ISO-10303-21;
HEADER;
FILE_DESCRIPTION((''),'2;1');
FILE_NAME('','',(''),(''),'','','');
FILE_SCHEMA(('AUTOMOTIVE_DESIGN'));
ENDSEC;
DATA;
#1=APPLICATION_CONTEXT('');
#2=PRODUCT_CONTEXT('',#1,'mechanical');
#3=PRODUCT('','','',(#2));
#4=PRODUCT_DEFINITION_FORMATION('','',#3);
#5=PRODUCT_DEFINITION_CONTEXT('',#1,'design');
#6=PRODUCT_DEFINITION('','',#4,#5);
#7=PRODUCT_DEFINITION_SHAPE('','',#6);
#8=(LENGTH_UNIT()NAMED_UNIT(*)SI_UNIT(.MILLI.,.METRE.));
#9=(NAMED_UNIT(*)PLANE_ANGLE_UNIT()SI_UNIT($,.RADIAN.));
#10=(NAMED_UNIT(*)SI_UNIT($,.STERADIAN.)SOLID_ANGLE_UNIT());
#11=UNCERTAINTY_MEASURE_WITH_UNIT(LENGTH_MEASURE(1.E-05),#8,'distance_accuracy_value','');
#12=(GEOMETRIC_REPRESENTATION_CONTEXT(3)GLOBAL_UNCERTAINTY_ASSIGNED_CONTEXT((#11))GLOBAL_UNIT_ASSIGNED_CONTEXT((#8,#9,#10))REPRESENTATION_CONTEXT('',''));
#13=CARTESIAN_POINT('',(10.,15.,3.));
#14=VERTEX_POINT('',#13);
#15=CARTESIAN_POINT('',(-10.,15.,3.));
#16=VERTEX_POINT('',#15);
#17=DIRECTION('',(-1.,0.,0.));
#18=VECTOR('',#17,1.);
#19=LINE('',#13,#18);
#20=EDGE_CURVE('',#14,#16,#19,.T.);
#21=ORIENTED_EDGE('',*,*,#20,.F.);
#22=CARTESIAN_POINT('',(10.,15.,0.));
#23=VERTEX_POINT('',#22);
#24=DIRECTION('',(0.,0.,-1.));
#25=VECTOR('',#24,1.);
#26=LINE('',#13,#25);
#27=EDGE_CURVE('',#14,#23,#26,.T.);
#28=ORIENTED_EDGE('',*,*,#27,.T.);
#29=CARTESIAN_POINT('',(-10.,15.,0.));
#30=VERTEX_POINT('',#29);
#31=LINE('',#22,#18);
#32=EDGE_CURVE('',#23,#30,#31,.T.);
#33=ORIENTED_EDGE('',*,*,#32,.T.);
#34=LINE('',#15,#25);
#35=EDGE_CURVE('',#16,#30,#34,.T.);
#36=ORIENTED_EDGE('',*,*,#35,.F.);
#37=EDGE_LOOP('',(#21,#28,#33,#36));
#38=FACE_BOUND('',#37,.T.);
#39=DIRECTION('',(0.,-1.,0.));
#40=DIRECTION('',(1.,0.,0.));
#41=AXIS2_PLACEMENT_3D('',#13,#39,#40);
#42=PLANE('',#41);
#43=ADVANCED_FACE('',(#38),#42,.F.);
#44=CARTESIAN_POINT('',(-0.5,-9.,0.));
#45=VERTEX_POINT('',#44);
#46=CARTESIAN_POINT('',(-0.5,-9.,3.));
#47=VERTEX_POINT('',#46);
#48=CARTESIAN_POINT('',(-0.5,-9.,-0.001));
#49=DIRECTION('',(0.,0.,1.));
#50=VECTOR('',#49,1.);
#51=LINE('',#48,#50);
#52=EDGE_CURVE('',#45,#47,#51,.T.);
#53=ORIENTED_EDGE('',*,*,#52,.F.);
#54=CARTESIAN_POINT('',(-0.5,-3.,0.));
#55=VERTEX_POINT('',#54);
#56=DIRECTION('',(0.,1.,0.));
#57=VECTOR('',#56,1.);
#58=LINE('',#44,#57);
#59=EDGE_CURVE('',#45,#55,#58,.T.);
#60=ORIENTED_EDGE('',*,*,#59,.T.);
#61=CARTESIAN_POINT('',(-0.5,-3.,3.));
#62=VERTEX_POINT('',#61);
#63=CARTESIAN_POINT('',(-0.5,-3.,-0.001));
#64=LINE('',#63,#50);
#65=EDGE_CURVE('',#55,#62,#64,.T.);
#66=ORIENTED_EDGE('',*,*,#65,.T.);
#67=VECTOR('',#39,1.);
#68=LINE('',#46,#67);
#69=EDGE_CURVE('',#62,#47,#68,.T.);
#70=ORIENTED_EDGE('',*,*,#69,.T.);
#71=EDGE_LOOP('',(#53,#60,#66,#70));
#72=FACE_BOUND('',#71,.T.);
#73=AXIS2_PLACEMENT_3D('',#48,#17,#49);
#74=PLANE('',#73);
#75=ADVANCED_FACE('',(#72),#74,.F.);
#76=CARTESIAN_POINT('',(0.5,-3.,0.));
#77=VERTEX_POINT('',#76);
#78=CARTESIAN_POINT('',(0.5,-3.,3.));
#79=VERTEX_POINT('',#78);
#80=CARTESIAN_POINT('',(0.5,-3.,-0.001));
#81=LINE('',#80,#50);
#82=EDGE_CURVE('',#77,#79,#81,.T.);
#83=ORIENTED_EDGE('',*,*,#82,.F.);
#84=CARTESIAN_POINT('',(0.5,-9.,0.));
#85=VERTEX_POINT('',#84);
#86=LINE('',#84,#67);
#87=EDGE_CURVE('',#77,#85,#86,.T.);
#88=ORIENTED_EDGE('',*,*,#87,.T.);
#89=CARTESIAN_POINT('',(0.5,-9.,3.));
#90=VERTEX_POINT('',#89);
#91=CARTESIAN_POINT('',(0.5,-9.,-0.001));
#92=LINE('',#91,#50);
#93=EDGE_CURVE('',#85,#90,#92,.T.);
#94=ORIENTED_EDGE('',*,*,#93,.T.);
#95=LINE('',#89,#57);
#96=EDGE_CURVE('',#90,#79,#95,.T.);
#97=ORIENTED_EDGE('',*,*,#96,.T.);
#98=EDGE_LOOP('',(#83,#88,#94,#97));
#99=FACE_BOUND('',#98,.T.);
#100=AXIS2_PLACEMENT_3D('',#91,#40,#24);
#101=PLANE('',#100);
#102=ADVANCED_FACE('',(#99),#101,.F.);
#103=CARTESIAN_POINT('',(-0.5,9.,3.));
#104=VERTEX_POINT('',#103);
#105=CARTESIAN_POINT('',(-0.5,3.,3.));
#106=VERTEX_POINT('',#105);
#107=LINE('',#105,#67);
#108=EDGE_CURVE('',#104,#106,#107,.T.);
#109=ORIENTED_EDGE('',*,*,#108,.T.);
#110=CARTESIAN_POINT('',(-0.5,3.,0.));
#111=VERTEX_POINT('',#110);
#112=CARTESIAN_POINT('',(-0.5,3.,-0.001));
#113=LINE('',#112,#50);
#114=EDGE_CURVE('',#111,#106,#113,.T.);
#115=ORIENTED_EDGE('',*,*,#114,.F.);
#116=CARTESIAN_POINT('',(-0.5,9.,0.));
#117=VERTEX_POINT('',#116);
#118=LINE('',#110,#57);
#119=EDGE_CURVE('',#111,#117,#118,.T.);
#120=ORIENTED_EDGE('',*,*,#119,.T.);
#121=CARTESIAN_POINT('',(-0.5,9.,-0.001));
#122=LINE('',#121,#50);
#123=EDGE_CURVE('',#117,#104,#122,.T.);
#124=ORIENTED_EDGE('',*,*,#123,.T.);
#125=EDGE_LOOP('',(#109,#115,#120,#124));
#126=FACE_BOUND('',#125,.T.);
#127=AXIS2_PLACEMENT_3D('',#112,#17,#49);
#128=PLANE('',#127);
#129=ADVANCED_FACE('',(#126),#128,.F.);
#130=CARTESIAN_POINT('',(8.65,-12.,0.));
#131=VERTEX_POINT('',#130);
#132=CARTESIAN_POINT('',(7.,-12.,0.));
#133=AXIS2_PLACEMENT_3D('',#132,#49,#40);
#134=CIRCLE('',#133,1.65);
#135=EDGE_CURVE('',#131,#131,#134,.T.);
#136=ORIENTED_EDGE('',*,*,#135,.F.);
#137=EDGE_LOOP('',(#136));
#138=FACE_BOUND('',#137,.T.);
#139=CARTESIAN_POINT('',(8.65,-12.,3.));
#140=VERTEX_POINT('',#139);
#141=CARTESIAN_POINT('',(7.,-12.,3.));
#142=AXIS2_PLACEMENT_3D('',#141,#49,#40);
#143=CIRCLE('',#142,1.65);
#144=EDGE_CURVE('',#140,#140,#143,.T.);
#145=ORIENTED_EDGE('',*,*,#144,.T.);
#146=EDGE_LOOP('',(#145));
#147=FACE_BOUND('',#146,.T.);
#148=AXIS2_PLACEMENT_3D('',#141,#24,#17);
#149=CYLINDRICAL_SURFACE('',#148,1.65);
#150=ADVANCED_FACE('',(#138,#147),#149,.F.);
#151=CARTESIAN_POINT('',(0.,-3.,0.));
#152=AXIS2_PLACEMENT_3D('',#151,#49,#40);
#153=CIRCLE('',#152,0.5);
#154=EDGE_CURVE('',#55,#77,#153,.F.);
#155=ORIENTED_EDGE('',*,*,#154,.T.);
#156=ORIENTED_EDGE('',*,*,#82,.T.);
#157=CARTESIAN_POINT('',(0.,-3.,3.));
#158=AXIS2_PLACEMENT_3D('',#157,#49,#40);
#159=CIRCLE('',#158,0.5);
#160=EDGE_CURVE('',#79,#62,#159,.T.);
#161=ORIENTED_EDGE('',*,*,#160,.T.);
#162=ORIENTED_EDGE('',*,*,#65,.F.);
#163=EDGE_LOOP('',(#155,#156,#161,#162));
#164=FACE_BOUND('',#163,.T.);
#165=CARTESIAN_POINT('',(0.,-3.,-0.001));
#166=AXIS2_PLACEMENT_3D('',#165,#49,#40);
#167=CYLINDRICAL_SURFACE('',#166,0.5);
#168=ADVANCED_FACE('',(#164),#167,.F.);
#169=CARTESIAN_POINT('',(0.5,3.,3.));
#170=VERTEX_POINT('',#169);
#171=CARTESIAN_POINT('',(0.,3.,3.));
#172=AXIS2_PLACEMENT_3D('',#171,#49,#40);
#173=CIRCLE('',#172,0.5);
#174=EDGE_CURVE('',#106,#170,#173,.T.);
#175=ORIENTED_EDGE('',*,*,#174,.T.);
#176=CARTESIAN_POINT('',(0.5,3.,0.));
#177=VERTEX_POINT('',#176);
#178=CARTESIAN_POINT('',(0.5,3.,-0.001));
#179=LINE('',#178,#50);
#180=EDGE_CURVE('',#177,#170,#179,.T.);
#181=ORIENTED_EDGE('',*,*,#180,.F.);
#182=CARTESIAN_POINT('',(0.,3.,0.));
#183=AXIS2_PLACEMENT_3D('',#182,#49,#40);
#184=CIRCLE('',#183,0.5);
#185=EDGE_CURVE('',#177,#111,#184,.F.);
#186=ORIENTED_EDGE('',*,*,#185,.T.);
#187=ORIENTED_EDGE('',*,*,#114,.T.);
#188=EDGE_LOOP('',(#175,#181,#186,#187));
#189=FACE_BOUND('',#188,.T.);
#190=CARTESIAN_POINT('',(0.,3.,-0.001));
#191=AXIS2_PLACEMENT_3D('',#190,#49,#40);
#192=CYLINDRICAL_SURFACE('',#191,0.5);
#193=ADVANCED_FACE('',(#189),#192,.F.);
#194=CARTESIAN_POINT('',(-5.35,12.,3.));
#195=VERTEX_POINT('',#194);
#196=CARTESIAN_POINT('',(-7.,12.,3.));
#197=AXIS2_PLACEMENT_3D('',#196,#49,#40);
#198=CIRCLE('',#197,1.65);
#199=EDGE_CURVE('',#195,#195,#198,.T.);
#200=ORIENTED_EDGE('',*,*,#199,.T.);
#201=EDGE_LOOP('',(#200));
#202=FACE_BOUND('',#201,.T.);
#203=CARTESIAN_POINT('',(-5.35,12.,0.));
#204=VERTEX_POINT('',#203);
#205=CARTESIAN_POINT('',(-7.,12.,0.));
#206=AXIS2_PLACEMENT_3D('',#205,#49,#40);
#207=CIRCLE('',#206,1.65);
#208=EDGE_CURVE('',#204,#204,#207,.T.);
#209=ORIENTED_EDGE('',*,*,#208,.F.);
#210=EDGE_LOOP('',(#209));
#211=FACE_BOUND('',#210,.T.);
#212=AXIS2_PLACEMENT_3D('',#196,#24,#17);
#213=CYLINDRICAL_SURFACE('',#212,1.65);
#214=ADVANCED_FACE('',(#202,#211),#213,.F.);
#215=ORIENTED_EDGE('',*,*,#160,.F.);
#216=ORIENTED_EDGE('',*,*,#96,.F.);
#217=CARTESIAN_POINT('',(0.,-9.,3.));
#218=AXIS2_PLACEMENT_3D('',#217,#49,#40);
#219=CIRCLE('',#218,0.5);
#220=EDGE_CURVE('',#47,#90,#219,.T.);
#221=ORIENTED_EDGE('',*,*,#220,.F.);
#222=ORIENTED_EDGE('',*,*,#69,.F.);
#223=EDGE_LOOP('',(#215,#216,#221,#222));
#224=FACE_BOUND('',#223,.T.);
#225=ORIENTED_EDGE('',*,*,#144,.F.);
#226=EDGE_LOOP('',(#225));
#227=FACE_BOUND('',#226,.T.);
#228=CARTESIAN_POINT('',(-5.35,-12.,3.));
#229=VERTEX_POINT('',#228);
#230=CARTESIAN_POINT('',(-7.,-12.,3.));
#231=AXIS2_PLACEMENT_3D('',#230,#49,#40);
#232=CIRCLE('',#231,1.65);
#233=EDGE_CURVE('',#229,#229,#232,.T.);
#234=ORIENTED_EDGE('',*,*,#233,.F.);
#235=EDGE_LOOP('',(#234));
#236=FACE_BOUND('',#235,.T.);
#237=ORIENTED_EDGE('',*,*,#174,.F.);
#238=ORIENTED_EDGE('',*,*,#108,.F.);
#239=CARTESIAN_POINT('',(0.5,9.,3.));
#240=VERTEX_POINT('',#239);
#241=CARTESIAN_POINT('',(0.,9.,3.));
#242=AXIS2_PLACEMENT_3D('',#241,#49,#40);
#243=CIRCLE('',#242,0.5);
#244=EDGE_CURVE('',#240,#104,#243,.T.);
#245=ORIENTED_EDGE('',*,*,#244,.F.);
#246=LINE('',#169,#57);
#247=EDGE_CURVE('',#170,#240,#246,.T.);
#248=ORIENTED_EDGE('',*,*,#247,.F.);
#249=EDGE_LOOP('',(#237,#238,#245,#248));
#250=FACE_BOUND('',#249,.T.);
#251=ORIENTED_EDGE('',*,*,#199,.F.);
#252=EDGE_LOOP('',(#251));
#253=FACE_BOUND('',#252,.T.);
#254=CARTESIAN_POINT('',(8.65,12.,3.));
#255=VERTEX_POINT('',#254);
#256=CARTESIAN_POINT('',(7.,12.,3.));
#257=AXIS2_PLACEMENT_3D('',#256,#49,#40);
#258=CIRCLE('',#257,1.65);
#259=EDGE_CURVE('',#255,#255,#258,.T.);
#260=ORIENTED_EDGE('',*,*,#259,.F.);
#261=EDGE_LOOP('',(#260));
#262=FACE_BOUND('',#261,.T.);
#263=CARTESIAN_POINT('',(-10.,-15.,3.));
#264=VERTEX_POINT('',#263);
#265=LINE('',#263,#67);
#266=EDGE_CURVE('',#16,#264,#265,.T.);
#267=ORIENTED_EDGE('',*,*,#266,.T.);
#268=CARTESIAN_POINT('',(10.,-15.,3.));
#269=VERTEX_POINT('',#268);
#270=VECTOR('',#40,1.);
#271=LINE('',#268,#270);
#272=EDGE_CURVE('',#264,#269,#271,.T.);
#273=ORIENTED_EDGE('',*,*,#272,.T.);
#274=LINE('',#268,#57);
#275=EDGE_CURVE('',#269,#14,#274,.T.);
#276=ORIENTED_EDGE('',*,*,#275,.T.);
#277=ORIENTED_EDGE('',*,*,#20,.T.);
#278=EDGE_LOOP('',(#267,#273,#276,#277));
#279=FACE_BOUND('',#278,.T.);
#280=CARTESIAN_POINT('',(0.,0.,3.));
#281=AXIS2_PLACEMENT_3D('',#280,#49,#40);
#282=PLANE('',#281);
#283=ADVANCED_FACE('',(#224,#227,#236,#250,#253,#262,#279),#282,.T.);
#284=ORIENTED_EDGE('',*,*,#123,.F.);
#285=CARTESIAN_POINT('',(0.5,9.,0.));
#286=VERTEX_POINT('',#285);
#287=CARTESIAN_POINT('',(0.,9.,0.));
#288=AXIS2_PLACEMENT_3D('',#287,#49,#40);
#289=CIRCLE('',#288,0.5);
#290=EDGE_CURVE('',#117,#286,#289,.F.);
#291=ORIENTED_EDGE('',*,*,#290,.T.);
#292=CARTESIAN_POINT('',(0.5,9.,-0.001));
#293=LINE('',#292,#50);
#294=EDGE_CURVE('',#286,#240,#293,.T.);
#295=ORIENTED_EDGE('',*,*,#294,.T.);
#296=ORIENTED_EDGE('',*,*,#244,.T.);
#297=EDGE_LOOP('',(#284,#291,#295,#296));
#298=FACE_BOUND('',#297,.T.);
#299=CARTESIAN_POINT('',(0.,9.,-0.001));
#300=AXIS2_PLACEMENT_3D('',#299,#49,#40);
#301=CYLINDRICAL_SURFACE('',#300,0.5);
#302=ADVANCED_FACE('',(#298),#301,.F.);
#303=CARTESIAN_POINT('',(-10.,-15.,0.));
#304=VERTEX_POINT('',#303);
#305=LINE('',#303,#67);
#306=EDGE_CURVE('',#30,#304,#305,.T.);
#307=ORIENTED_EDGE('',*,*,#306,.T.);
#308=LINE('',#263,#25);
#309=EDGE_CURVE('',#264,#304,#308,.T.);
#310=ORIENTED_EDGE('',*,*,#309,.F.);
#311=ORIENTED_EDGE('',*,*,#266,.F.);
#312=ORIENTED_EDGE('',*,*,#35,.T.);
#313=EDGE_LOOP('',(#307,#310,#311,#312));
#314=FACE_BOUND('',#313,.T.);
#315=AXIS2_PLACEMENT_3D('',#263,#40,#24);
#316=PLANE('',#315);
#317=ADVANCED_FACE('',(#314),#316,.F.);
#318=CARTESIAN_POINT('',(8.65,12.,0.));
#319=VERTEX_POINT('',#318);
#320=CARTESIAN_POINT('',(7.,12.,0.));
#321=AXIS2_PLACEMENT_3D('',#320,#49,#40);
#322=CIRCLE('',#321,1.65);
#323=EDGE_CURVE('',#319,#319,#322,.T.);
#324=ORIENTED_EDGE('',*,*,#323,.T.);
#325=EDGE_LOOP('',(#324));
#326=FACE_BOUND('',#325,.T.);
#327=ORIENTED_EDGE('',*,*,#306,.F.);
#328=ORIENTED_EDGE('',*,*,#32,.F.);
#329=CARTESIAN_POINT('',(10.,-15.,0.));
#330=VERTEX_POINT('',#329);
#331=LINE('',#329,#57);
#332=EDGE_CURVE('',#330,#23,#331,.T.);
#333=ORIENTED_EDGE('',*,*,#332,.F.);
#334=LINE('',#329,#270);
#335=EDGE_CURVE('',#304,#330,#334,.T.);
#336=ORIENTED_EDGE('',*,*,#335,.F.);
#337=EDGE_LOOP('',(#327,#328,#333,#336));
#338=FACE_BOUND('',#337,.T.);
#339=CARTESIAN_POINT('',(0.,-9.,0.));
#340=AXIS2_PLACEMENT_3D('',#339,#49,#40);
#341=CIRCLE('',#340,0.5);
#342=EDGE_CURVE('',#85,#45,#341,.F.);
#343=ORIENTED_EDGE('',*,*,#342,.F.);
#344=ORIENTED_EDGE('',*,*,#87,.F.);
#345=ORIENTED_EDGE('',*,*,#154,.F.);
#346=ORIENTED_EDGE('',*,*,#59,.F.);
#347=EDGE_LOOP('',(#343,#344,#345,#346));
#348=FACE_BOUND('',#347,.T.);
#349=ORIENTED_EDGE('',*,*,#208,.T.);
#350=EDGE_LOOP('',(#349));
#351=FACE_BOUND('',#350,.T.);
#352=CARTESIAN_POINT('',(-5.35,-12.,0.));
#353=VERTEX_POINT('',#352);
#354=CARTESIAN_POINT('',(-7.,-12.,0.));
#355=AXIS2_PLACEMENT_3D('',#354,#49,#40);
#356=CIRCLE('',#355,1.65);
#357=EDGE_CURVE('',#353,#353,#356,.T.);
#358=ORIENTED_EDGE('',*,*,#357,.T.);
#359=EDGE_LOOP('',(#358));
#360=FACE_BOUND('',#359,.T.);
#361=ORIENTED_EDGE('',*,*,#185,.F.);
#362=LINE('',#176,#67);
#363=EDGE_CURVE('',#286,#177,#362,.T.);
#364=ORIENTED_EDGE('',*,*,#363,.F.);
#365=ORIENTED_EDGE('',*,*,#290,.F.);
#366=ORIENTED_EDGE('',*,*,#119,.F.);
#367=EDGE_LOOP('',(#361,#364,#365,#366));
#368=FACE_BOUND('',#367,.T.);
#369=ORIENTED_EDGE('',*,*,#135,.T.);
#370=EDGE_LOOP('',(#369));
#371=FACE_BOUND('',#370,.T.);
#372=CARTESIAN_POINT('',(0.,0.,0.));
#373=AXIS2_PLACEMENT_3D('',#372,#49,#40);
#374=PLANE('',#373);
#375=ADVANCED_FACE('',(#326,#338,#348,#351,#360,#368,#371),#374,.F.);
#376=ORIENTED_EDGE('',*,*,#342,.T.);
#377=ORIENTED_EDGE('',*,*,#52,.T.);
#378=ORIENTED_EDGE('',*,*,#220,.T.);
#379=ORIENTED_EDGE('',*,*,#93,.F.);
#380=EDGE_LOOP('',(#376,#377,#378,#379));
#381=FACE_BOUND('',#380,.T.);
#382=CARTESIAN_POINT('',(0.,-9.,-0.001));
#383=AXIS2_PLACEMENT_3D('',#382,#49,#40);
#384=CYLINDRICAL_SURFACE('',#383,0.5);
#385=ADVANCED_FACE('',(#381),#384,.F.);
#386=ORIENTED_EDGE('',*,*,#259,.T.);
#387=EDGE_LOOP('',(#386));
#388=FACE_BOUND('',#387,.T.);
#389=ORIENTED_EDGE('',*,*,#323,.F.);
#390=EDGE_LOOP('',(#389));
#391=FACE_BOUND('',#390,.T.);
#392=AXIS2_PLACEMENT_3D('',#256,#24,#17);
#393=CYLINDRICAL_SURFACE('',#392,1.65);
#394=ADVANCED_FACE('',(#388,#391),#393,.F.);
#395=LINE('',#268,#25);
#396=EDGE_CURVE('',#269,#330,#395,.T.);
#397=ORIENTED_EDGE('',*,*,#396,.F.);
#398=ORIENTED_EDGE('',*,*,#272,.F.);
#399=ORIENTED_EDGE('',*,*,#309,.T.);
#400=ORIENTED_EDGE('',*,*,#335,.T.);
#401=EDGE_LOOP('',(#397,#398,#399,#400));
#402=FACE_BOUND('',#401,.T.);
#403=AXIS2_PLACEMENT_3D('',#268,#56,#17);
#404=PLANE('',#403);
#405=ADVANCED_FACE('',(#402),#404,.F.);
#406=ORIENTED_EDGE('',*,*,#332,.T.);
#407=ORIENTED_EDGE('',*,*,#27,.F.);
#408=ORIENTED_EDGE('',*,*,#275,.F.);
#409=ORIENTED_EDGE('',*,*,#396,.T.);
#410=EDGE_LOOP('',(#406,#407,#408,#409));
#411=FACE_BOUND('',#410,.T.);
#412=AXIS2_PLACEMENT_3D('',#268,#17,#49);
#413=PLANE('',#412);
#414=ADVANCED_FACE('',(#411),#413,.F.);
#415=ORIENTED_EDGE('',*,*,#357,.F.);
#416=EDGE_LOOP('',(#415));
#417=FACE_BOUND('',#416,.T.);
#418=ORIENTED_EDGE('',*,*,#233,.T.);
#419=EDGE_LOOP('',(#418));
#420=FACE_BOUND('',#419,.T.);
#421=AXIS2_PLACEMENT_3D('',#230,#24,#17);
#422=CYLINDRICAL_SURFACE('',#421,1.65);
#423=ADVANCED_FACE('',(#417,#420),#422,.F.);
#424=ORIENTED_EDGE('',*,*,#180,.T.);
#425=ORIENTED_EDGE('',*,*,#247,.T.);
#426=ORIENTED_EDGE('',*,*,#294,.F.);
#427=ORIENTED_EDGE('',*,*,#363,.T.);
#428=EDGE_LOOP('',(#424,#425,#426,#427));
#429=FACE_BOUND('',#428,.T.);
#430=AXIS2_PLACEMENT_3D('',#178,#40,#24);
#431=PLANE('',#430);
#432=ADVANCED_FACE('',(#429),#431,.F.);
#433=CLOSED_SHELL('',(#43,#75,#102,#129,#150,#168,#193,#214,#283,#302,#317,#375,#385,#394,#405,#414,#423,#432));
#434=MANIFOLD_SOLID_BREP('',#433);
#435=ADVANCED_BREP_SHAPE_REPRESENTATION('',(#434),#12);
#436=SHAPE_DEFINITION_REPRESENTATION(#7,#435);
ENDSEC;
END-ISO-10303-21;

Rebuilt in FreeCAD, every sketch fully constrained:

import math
import FreeCAD as App
import Part
import Sketcher
Q = App.Units.Quantity


def add_polygon(sketch, points):
    """Adds a closed chain of lines whose ends are joined by coincident constraints."""
    first, n = sketch.GeometryCount, len(points)
    for a, b in zip(points, points[1:] + points[:1]):
        sketch.addGeometry(Part.LineSegment(App.Vector(*a, 0), App.Vector(*b, 0)), False)
    for i in range(n):
        sketch.addConstraint(Sketcher.Constraint("Coincident", first + i, 2, first + (i + 1) % n, 1))

doc = App.newDocument("Part")
body = doc.addObject("PartDesign::Body", "Body")

sketch1 = doc.addObject("Sketcher::SketchObject", "Sketch")
body.addObject(sketch1)
sketch1.AttachmentSupport = (doc.XY_Plane, [""])
sketch1.MapMode = "FlatFace"
add_polygon(sketch1, [(-10, 15), (-10, -15), (10, -15), (10, 15)])
sketch1.addGeometry(Part.Circle(App.Vector(-7, -12, 0), App.Vector(0, 0, 1), 1.65), False)
sketch1.addGeometry(Part.Circle(App.Vector(7, -12, 0), App.Vector(0, 0, 1), 1.65), False)
sketch1.addGeometry(Part.Circle(App.Vector(-7, 12, 0), App.Vector(0, 0, 1), 1.65), False)
sketch1.addGeometry(Part.Circle(App.Vector(7, 12, 0), App.Vector(0, 0, 1), 1.65), False)
sketch1.addConstraint(Sketcher.Constraint("Vertical", 0))
sketch1.addConstraint(Sketcher.Constraint("Horizontal", 1))
sketch1.addConstraint(Sketcher.Constraint("Vertical", 2))
sketch1.addConstraint(Sketcher.Constraint("Horizontal", 3))
sketch1.addConstraint(Sketcher.Constraint("Equal", 4, 5))
sketch1.addConstraint(Sketcher.Constraint("Equal", 5, 6))
sketch1.addConstraint(Sketcher.Constraint("Equal", 6, 7))
sketch1.addConstraint(Sketcher.Constraint("Symmetric", 5, 3, 6, 3, -1, 1))
sketch1.addConstraint(Sketcher.Constraint("Symmetric", 4, 3, 7, 3, -1, 1))
sketch1.addConstraint(Sketcher.Constraint("Symmetric", 0, 2, 2, 2, -1, 1))
sketch1.addConstraint(Sketcher.Constraint("Symmetric", 4, 3, 5, 3, -2))
sketch1.addConstraint(Sketcher.Constraint("Diameter", 4, Q("3.3 mm")))
sketch1.addConstraint(Sketcher.Constraint("DistanceX", 1, 1, 1, 2, Q("20 mm")))
sketch1.addConstraint(Sketcher.Constraint("DistanceY", 0, 2, 0, 1, Q("30 mm")))
sketch1.addConstraint(Sketcher.Constraint("DistanceX", 4, 3, -1, 1, Q("7 mm")))
sketch1.addConstraint(Sketcher.Constraint("DistanceY", 4, 3, -1, 1, Q("12 mm")))
pad1 = doc.addObject("PartDesign::Pad", "Pad")
body.addObject(pad1)
pad1.Profile = sketch1
pad1.Length = 3

sketch2 = doc.addObject("Sketcher::SketchObject", "Sketch001")
body.addObject(sketch2)
sketch2.AttachmentSupport = (doc.XY_Plane, [""])
sketch2.MapMode = "FlatFace"
sketch2.AttachmentOffset = App.Placement(App.Vector(0, 0, 3), App.Rotation())
sketch2.addGeometry(Part.LineSegment(App.Vector(-0.5, -3, 0), App.Vector(-0.5, -9, 0)), False)
sketch2.addGeometry(Part.ArcOfCircle(Part.Circle(App.Vector(0, -9, 0), App.Vector(0, 0, 1), 0.5), math.radians(180), math.radians(360)), False)
sketch2.addGeometry(Part.LineSegment(App.Vector(0.5, -9, 0), App.Vector(0.5, -3, 0)), False)
sketch2.addGeometry(Part.ArcOfCircle(Part.Circle(App.Vector(0, -3, 0), App.Vector(0, 0, 1), 0.5), math.radians(0), math.radians(180)), False)
sketch2.addConstraint(Sketcher.Constraint("Tangent", 0, 2, 1, 1))
sketch2.addConstraint(Sketcher.Constraint("Tangent", 1, 2, 2, 1))
sketch2.addConstraint(Sketcher.Constraint("Tangent", 2, 2, 3, 1))
sketch2.addConstraint(Sketcher.Constraint("Tangent", 3, 2, 0, 1))
sketch2.addConstraint(Sketcher.Constraint("Vertical", 0))
sketch2.addConstraint(Sketcher.Constraint("Vertical", 2))
sketch2.addConstraint(Sketcher.Constraint("PointOnObject", 1, 3, -2))
sketch2.addConstraint(Sketcher.Constraint("Radius", 1, Q("0.5 mm")))
sketch2.addConstraint(Sketcher.Constraint("DistanceY", 0, 2, 0, 1, Q("6 mm")))
sketch2.addConstraint(Sketcher.Constraint("DistanceY", 1, 3, -1, 1, Q("9 mm")))
pocket1 = doc.addObject("PartDesign::Pocket", "Pocket")
body.addObject(pocket1)
pocket1.Profile = sketch2
pocket1.Type = "UpToFirst"

sketch3 = doc.addObject("Sketcher::SketchObject", "Sketch002")
body.addObject(sketch3)
sketch3.AttachmentSupport = (doc.XY_Plane, [""])
sketch3.MapMode = "FlatFace"
sketch3.AttachmentOffset = App.Placement(App.Vector(0, 0, 3), App.Rotation())
sketch3.addGeometry(Part.LineSegment(App.Vector(-0.5, 9, 0), App.Vector(-0.5, 3, 0)), False)
sketch3.addGeometry(Part.ArcOfCircle(Part.Circle(App.Vector(0, 3, 0), App.Vector(0, 0, 1), 0.5), math.radians(180), math.radians(360)), False)
sketch3.addGeometry(Part.LineSegment(App.Vector(0.5, 3, 0), App.Vector(0.5, 9, 0)), False)
sketch3.addGeometry(Part.ArcOfCircle(Part.Circle(App.Vector(0, 9, 0), App.Vector(0, 0, 1), 0.5), math.radians(0), math.radians(180)), False)
sketch3.addConstraint(Sketcher.Constraint("Tangent", 0, 2, 1, 1))
sketch3.addConstraint(Sketcher.Constraint("Tangent", 1, 2, 2, 1))
sketch3.addConstraint(Sketcher.Constraint("Tangent", 2, 2, 3, 1))
sketch3.addConstraint(Sketcher.Constraint("Tangent", 3, 2, 0, 1))
sketch3.addConstraint(Sketcher.Constraint("Vertical", 0))
sketch3.addConstraint(Sketcher.Constraint("Vertical", 2))
sketch3.addConstraint(Sketcher.Constraint("PointOnObject", 1, 3, -2))
sketch3.addConstraint(Sketcher.Constraint("Radius", 1, Q("0.5 mm")))
sketch3.addConstraint(Sketcher.Constraint("DistanceY", 0, 2, 0, 1, Q("6 mm")))
sketch3.addConstraint(Sketcher.Constraint("DistanceY", -1, 1, 1, 3, Q("3 mm")))
pocket2 = doc.addObject("PartDesign::Pocket", "Pocket001")
body.addObject(pocket2)
pocket2.Profile = sketch3
pocket2.Type = "UpToFirst"

doc.recompute()
